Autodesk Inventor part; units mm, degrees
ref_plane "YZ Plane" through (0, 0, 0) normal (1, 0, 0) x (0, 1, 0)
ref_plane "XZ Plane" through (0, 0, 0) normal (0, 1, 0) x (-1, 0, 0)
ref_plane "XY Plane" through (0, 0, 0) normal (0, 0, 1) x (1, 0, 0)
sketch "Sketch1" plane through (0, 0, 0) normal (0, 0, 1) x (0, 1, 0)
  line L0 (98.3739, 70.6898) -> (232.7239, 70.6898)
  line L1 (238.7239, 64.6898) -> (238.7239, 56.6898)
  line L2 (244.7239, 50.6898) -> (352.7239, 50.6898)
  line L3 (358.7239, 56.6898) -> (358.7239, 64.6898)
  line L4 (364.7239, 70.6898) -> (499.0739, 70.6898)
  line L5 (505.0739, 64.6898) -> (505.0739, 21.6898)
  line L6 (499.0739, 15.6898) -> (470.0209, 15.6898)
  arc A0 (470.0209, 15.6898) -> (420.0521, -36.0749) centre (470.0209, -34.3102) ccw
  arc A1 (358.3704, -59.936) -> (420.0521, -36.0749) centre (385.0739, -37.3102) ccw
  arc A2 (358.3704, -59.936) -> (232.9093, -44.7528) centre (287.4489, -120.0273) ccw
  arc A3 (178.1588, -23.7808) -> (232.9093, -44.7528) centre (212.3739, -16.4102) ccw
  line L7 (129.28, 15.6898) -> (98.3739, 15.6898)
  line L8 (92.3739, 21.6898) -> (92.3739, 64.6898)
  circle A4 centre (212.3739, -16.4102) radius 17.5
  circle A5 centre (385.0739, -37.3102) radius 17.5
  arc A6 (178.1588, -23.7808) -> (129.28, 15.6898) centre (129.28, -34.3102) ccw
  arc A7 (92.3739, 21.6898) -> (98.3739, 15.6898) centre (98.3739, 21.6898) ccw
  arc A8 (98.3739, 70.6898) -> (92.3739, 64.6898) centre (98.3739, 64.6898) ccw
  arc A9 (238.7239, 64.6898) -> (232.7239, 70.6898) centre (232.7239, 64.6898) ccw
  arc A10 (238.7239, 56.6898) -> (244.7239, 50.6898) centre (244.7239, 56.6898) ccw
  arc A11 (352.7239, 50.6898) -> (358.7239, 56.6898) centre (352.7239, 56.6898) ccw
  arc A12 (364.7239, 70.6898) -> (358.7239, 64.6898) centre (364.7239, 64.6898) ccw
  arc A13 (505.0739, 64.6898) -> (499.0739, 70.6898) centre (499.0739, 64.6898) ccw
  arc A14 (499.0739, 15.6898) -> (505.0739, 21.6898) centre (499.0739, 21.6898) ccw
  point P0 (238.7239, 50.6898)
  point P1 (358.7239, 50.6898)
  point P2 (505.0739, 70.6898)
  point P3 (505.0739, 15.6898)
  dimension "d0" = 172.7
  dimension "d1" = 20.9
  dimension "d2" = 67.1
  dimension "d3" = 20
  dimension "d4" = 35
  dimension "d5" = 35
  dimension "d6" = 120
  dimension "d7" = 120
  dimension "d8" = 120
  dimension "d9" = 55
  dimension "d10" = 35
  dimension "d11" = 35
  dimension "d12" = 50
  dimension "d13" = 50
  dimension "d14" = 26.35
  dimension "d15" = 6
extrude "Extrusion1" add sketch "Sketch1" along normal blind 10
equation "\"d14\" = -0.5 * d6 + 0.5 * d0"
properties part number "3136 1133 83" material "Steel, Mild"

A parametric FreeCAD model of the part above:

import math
import FreeCAD as App
import Part
import Sketcher
from FreeCAD import Vector
Q = App.Units.Quantity

doc = App.newDocument("Part")
params = doc.addObject("Spreadsheet::Sheet", "Params")
for row, (alias, value) in enumerate([
    ("sketch1_diameter", "35 mm"),
    ("sketch1_radius", "6 mm"),
    ("sketch1_radius2", "50 mm"),
    ("sketch1_radius3", "35 mm"),
    ("pad1_length", "10 mm"),
], start=1):
    params.set(f"A{row}", alias)
    params.set(f"B{row}", "=" + value)
    params.setAlias(f"B{row}", alias)

body = doc.addObject("PartDesign::Body", "Body")

# Sketch on XY plane
sketch1 = body.newObject("Sketcher::SketchObject", "Sketch")
sketch1.AttachmentSupport = (doc.getObject("XY_Plane"), [""])
sketch1.MapMode = "FlatFace"
sketch1.addGeometry([
    Part.LineSegment(Vector(-70.6898, 232.7239, 0), Vector(-70.6898, 98.3739, 0)),  # 0
    Part.ArcOfCircle(Part.Circle(Vector(-64.6898, 98.3739, 0), Vector(0, 0, 1), 6), math.radians(180), math.radians(270)),  # 1
    Part.LineSegment(Vector(-64.6898, 92.3739, 0), Vector(-21.6898, 92.3739, 0)),  # 2
    Part.ArcOfCircle(Part.Circle(Vector(-21.6898, 98.3739, 0), Vector(0, 0, 1), 6), math.radians(-90), math.radians(0)),  # 3
    Part.LineSegment(Vector(-15.6898, 98.3739, 0), Vector(-15.6898, 129.28, 0)),  # 4
    Part.ArcOfCircle(Part.Circle(Vector(34.3102, 129.28, 0), Vector(0, 0, 1), 50.000054), math.radians(102.1568), math.radians(180)),  # 5
    Part.ArcOfCircle(Part.Circle(Vector(16.4102, 212.3739, 0), Vector(0, 0, 1), 34.999983), math.radians(-77.843148), math.radians(35.924902)),  # 6
    Part.ArcOfCircle(Part.Circle(Vector(120.0273, 287.4489, 0), Vector(0, 0, 1), 92.95603), math.radians(130.274377), math.radians(215.924939)),  # 7
    Part.ArcOfCircle(Part.Circle(Vector(37.3102, 385.0739, 0), Vector(0, 0, 1), 35.000053), math.radians(-49.725488), math.radians(92.022633)),  # 8
    Part.ArcOfCircle(Part.Circle(Vector(34.3102, 470.0209, 0), Vector(0, 0, 1), 50), math.radians(180), math.radians(272.022619)),  # 9
    Part.LineSegment(Vector(-15.6898, 470.0209, 0), Vector(-15.6898, 499.0739, 0)),  # 10
    Part.ArcOfCircle(Part.Circle(Vector(-21.6898, 499.0739, 0), Vector(0, 0, 1), 6), math.radians(0), math.radians(90)),  # 11
    Part.LineSegment(Vector(-21.6898, 505.0739, 0), Vector(-64.6898, 505.0739, 0)),  # 12
    Part.ArcOfCircle(Part.Circle(Vector(-64.6898, 499.0739, 0), Vector(0, 0, 1), 6), math.radians(90), math.radians(180)),  # 13
    Part.LineSegment(Vector(-70.6898, 499.0739, 0), Vector(-70.6898, 364.7239, 0)),  # 14
    Part.ArcOfCircle(Part.Circle(Vector(-64.6898, 364.7239, 0), Vector(0, 0, 1), 6), math.radians(180), math.radians(270)),  # 15
    Part.LineSegment(Vector(-64.6898, 358.7239, 0), Vector(-56.6898, 358.7239, 0)),  # 16
    Part.ArcOfCircle(Part.Circle(Vector(-56.6898, 352.7239, 0), Vector(0, 0, 1), 6), math.radians(0), math.radians(90)),  # 17
    Part.LineSegment(Vector(-50.6898, 352.7239, 0), Vector(-50.6898, 244.7239, 0)),  # 18
    Part.ArcOfCircle(Part.Circle(Vector(-56.6898, 244.7239, 0), Vector(0, 0, 1), 6), math.radians(-90), math.radians(0)),  # 19
    Part.LineSegment(Vector(-56.6898, 238.7239, 0), Vector(-64.6898, 238.7239, 0)),  # 20
    Part.ArcOfCircle(Part.Circle(Vector(-64.6898, 232.7239, 0), Vector(0, 0, 1), 6), math.radians(90), math.radians(180)),  # 21
    Part.Circle(Vector(16.4102, 212.3739, 0), Vector(0, 0, 1), 17.5),  # 22
    Part.Circle(Vector(37.3102, 385.0739, 0), Vector(0, 0, 1), 17.5),  # 23
], False)
sketch1.addConstraint([
    Sketcher.Constraint("Tangent", 0, 2, 1, 1),
    Sketcher.Constraint("Tangent", 1, 2, 2, 1),
    Sketcher.Constraint("Tangent", 2, 2, 3, 1),
    Sketcher.Constraint("Tangent", 3, 2, 4, 1),
    Sketcher.Constraint("Tangent", 4, 2, 5, 2),
    Sketcher.Constraint("Tangent", 5, 1, 6, 1),
    Sketcher.Constraint("Tangent", 6, 2, 7, 2),
    Sketcher.Constraint("Tangent", 7, 1, 8, 1),
    Sketcher.Constraint("Tangent", 8, 2, 9, 2),
    Sketcher.Constraint("Tangent", 9, 1, 10, 1),
    Sketcher.Constraint("Tangent", 10, 2, 11, 1),
    Sketcher.Constraint("Tangent", 11, 2, 12, 1),
    Sketcher.Constraint("Tangent", 12, 2, 13, 1),
    Sketcher.Constraint("Tangent", 13, 2, 14, 1),
    Sketcher.Constraint("Tangent", 14, 2, 15, 1),
    Sketcher.Constraint("Tangent", 15, 2, 16, 1),
    Sketcher.Constraint("Tangent", 16, 2, 17, 2),
    Sketcher.Constraint("Tangent", 17, 1, 18, 1),
    Sketcher.Constraint("Tangent", 18, 2, 19, 2),
    Sketcher.Constraint("Tangent", 19, 1, 20, 1),
    Sketcher.Constraint("Tangent", 20, 2, 21, 1),
    Sketcher.Constraint("Tangent", 21, 2, 0, 1),
    Sketcher.Constraint("Vertical", 0),
    Sketcher.Constraint("Horizontal", 2),
    Sketcher.Constraint("Vertical", 4),
    Sketcher.Constraint("Vertical", 10),
    Sketcher.Constraint("Horizontal", 12),
    Sketcher.Constraint("Vertical", 14),
    Sketcher.Constraint("Horizontal", 16),
    Sketcher.Constraint("Vertical", 18),
    Sketcher.Constraint("Horizontal", 20),
    Sketcher.Constraint("Coincident", 22, 3, 6, 3),
    Sketcher.Constraint("Coincident", 23, 3, 8, 3),
    Sketcher.Constraint("Equal", 1, 3),
    Sketcher.Constraint("Equal", 6, 8),
    Sketcher.Constraint("Equal", 5, 9),
    Sketcher.Constraint("Equal", 3, 11),
    Sketcher.Constraint("Equal", 11, 13),
    Sketcher.Constraint("Equal", 13, 15),
    Sketcher.Constraint("Equal", 15, 17),
    Sketcher.Constraint("Equal", 17, 19),
    Sketcher.Constraint("Equal", 19, 21),
    Sketcher.Constraint("Equal", 22, 23),
    Sketcher.Constraint("Vertical", 5, 3, 9, 3),
    Sketcher.Constraint("Vertical", 1, 3, 13, 3),
    Sketcher.Constraint("Equal", 0, 14),
    Sketcher.Constraint("Diameter", 22, Q("35 mm")),
    Sketcher.Constraint("Radius", 1, Q("6 mm")),
    Sketcher.Constraint("Radius", 5, Q("50 mm")),
    Sketcher.Constraint("Radius", 6, Q("35 mm")),
    Sketcher.Constraint("DistanceX", 17, 3, 11, 3, Q("35 mm")),
    Sketcher.Constraint("DistanceY", 19, 3, 15, 3, Q("120 mm")),
    Sketcher.Constraint("DistanceX", 0, 2, 3, 2, Q("55 mm")),
    Sketcher.Constraint("DistanceX", 6, 3, 8, 3, Q("20.9 mm")),
    Sketcher.Constraint("DistanceY", 6, 3, 8, 3, Q("172.7 mm")),
    Sketcher.Constraint("DistanceX", 18, 2, 6, 3, Q("67.1 mm")),
    Sketcher.Constraint("DistanceY", 15, 2, 8, 3, Q("26.35 mm")),
    Sketcher.Constraint("Radius", 7, Q("92.956 mm")),
    Sketcher.Constraint("DistanceY", 3, 3, 6, 3, Q("114 mm")),
    Sketcher.Constraint("DistanceY", -1, 1, 5, 3, Q("129.28 mm")),
    Sketcher.Constraint("DistanceX", -1, 1, 7, 1, Q("59.936 mm")),
])
sketch1.setExpression("Constraints[46]", "Params.sketch1_diameter")
sketch1.setExpression("Constraints[47]", "Params.sketch1_radius")
sketch1.setExpression("Constraints[48]", "Params.sketch1_radius2")
sketch1.setExpression("Constraints[49]", "Params.sketch1_radius3")
pad1 = body.newObject("PartDesign::Pad", "Pad")
pad1.Profile = sketch1
pad1.setExpression("Length", "Params.pad1_length")

doc.recompute()
